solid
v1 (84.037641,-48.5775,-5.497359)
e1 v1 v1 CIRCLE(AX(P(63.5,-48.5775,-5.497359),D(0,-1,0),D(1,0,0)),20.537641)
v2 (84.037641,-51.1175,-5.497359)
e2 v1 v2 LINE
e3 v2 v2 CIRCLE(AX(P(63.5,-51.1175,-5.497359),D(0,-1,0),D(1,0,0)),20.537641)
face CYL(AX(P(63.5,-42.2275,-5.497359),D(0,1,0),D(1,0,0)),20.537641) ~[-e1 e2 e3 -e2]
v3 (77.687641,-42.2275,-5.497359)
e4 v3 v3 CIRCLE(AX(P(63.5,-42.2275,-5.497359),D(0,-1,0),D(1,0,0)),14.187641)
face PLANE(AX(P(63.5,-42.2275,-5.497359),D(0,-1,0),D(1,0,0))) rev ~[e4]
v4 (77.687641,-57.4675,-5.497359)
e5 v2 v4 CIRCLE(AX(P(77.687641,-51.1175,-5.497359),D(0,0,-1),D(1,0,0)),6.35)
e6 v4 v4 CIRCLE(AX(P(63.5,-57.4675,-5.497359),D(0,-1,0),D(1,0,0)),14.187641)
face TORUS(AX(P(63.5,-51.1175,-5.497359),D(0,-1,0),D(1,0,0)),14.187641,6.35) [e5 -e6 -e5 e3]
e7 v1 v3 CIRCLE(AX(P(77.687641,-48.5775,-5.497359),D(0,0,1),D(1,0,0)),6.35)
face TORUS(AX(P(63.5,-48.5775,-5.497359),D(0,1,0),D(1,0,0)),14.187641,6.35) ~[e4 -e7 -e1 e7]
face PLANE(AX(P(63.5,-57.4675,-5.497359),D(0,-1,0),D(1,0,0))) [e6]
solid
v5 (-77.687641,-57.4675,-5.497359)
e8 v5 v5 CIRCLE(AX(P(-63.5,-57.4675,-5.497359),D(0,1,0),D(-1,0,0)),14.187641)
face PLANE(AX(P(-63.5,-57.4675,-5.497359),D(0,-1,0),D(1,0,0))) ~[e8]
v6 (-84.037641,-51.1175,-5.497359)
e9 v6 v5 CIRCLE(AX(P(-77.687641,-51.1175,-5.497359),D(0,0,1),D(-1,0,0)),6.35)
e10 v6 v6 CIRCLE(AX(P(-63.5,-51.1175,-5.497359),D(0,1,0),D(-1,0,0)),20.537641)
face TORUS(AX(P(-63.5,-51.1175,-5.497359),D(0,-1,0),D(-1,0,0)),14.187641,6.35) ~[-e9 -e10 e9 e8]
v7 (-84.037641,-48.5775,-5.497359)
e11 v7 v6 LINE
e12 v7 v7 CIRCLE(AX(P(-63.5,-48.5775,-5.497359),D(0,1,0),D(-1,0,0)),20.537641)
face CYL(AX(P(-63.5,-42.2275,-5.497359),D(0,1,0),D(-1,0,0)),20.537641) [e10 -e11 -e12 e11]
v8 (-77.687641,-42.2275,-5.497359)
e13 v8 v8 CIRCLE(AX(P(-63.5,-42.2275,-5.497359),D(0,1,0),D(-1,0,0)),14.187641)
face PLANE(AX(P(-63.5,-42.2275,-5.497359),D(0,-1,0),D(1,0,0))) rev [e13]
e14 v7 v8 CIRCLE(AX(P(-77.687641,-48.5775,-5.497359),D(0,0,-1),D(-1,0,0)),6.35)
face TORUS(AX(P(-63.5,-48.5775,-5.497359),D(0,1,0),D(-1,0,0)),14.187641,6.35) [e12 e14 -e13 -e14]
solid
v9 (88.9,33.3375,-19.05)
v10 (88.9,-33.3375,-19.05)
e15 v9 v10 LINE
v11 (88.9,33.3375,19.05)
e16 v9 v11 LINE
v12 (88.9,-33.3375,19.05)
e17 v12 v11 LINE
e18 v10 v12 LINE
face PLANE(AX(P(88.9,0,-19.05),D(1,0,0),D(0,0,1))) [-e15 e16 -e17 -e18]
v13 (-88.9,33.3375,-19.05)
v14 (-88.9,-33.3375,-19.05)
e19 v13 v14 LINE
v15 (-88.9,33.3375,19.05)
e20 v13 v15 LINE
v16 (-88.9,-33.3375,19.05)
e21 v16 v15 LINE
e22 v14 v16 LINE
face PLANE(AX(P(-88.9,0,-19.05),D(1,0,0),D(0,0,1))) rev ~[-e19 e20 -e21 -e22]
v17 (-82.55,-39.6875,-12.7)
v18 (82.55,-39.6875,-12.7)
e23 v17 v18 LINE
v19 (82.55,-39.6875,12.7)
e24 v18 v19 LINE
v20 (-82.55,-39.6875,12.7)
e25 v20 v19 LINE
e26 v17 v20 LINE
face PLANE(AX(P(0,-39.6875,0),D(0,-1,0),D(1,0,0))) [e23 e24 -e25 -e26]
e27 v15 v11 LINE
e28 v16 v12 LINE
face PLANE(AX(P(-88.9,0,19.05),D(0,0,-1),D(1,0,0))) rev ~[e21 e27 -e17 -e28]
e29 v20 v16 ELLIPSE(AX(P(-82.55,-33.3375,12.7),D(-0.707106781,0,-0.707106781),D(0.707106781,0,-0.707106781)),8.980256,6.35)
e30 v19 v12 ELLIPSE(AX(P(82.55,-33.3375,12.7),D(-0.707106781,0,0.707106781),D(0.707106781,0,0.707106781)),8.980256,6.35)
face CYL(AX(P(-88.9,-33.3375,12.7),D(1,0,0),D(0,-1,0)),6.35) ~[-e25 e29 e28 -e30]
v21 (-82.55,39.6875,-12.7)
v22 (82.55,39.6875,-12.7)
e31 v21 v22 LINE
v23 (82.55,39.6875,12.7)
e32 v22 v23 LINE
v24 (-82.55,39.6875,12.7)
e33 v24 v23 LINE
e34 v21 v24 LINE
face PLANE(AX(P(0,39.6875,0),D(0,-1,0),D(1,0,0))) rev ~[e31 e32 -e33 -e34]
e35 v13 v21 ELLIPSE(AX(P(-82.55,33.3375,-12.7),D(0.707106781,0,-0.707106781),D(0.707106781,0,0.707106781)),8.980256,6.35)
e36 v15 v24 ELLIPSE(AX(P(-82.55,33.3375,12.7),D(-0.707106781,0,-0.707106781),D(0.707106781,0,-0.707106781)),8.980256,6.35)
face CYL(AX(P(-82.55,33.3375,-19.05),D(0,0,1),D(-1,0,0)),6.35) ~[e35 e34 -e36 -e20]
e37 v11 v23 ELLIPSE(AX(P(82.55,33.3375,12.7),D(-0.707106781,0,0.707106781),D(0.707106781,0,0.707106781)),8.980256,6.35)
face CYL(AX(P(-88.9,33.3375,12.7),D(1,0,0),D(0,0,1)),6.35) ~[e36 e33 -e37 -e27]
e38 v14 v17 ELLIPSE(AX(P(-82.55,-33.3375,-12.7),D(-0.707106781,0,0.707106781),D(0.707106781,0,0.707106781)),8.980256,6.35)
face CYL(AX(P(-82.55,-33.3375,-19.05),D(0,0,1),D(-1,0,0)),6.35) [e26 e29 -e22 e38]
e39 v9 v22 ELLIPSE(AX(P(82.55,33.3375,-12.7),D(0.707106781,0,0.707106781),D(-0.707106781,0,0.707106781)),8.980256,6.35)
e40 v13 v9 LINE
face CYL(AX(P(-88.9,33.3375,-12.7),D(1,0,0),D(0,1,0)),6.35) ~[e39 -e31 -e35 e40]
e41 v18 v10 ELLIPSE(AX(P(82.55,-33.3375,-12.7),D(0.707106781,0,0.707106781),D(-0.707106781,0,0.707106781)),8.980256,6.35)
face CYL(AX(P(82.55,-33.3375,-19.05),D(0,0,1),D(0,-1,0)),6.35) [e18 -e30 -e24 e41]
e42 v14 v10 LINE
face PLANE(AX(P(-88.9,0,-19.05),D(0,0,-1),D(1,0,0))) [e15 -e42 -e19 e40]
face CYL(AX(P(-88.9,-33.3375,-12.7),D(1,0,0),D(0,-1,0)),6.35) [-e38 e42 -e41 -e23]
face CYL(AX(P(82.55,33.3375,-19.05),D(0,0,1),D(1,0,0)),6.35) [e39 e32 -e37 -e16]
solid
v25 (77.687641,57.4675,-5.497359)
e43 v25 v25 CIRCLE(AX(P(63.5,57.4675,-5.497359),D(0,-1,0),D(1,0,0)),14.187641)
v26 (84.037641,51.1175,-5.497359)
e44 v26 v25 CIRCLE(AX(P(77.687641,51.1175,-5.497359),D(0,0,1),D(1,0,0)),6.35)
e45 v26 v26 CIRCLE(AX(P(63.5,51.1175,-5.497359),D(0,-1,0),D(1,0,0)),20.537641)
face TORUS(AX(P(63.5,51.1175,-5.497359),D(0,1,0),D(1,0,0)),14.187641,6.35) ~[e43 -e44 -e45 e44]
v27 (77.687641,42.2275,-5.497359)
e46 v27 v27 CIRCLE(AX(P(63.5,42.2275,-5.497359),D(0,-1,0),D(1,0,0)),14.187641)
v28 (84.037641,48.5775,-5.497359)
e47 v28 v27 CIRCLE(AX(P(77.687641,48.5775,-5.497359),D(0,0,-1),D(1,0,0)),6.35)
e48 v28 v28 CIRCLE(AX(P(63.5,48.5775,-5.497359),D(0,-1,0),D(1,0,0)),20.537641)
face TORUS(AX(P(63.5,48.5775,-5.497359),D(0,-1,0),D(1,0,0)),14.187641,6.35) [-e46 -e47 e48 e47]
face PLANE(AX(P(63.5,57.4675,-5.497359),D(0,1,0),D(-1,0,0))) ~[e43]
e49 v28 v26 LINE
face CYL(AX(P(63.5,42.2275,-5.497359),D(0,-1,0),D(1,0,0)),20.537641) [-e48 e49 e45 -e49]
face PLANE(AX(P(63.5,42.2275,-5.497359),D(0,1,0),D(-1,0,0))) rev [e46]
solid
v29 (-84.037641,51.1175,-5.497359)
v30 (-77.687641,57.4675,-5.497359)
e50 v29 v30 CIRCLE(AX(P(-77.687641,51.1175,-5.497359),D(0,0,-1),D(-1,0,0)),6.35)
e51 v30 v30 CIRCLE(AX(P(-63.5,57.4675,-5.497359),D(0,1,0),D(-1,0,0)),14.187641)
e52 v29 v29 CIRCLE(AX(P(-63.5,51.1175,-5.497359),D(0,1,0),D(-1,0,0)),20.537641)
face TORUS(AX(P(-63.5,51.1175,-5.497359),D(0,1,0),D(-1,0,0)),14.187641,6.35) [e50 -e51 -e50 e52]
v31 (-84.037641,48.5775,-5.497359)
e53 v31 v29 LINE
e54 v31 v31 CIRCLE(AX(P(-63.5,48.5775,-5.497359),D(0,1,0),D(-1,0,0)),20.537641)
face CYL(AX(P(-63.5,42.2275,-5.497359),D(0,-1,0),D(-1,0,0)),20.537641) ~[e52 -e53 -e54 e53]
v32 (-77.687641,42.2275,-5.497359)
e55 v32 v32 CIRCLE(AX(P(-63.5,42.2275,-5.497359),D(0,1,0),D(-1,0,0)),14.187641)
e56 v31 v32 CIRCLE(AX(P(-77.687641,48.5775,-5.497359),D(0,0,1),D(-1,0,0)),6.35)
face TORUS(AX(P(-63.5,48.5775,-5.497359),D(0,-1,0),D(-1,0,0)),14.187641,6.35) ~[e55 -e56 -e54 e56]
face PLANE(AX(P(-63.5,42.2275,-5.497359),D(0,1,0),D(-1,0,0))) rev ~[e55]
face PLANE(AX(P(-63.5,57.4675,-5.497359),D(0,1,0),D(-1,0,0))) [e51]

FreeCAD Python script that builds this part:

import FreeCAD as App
import Part
import Sketcher

V = App.Vector
Q = App.Units.Quantity


def edges_at(feature, points):
    """Names of the edges that pass closest to the given points."""
    edges = feature.Shape.Edges
    near = lambda p: min(range(len(edges)), key=lambda i: edges[i].distToShape(Part.Vertex(*p))[0])
    return sorted({f"Edge{near(p) + 1}" for p in points})

doc = App.newDocument("Part")
body = doc.addObject("PartDesign::Body", "Body")

# Sketch on XZ plane
sketch1 = doc.addObject("Sketcher::SketchObject", "Sketch")
body.addObject(sketch1)
sketch1.AttachmentSupport = (doc.XZ_Plane, [""])
sketch1.MapMode = "FlatFace"
sketch1.addGeometry(Part.LineSegment(V(-89, 19, 0), V(-89, -19, 0)), False)
sketch1.addGeometry(Part.LineSegment(V(-89, -19, 0), V(89, -19, 0)), False)
sketch1.addGeometry(Part.LineSegment(V(89, -19, 0), V(89, 19, 0)), False)
sketch1.addGeometry(Part.LineSegment(V(89, 19, 0), V(-89, 19, 0)), False)
sketch1.addConstraint(Sketcher.Constraint("Coincident", 0, 2, 1, 1))
sketch1.addConstraint(Sketcher.Constraint("Coincident", 1, 2, 2, 1))
sketch1.addConstraint(Sketcher.Constraint("Coincident", 2, 2, 3, 1))
sketch1.addConstraint(Sketcher.Constraint("Coincident", 3, 2, 0, 1))
sketch1.addConstraint(Sketcher.Constraint("Vertical", 0))
sketch1.addConstraint(Sketcher.Constraint("Horizontal", 1))
sketch1.addConstraint(Sketcher.Constraint("Vertical", 2))
sketch1.addConstraint(Sketcher.Constraint("Horizontal", 3))
sketch1.addConstraint(Sketcher.Constraint("Symmetric", 0, 2, 2, 2, -1, 1))
sketch1.addConstraint(Sketcher.Constraint("DistanceX", 1, 1, 1, 2, Q("7 in")))
sketch1.addConstraint(Sketcher.Constraint("DistanceY", 0, 2, 0, 1, Q("1.5 in")))
pad1 = doc.addObject("PartDesign::Pad", "Pad")
body.addObject(pad1)
pad1.Profile = sketch1
pad1.Length = Q("3.125 in")
pad1.Midplane = True
doc.recompute()

fillet = doc.addObject("PartDesign::Fillet", "Fillet")
body.addObject(fillet)
fillet.Base = (pad1, edges_at(pad1, [
    (88.9, -39.688, 0),
    (0, -39.688, 19.05),
    (-88.9, -39.688, 0),
    (0, -39.688, -19.05),
    (88.9, 39.688, 0),
    (0, 39.688, 19.05),
    (-88.9, 39.688, 0),
    (0, 39.688, -19.05),
]))
fillet.Radius = Q("0.25 in")
body2 = doc.addObject("PartDesign::Body", "Body001")

# Sketch on XZ plane
sketch2 = doc.addObject("Sketcher::SketchObject", "Sketch001")
body2.addObject(sketch2)
sketch2.AttachmentSupport = (doc.getObject("XZ_Plane001"), [""])
sketch2.MapMode = "FlatFace"
sketch2.AttachmentOffset = App.Placement(V(0, 0, 1.6625 * 25.4), App.Rotation())
sketch2.addGeometry(Part.Circle(V(64, -5, 0), V(0, 0, 1), 21), False)
sketch2.addConstraint(Sketcher.Constraint("DistanceX", -1, 1, 0, 3, Q("2.5 in")))
sketch2.addConstraint(Sketcher.Constraint("Diameter", 0, 41.075282))
sketch2.addConstraint(Sketcher.Constraint("DistanceY", 0, 3, -1, 1, 5.497359))
pad2 = doc.addObject("PartDesign::Pad", "Pad001")
body2.addObject(pad2)
pad2.Profile = sketch2
pad2.Length = Q("0.6 in")
doc.recompute()

fillet2 = doc.addObject("PartDesign::Fillet", "Fillet001")
body2.addObject(fillet2)
fillet2.Base = (pad2, ["Edge1"])
fillet2.UseAllEdges = True
fillet2.Radius = Q("0.25 in")
body3 = doc.addObject("PartDesign::Body", "Body002")
doc.recompute()

mirroring = doc.addObject("Part::Mirroring", "Mirroring")
mirroring.Source = body2
mirroring.Base = V(0, 0, 0)
mirroring.Normal = V(0, -1, 0)
body3.BaseFeature = mirroring
doc.recompute()
body4 = doc.addObject("PartDesign::Body", "Body003")
doc.recompute()

mirroring2 = doc.addObject("Part::Mirroring", "Mirroring001")
mirroring2.Source = body2
mirroring2.Base = V(0, 0, 0)
mirroring2.Normal = V(1, 0, 0)
body4.BaseFeature = mirroring2
doc.recompute()
body5 = doc.addObject("PartDesign::Body", "Body004")
doc.recompute()

mirroring3 = doc.addObject("Part::Mirroring", "Mirroring002")
mirroring3.Source = body3
mirroring3.Base = V(0, 0, 0)
mirroring3.Normal = V(1, 0, 0)
body5.BaseFeature = mirroring3
doc.recompute()
mirroring.Visibility = False
mirroring2.Visibility = False
mirroring3.Visibility = False

doc.recompute()
